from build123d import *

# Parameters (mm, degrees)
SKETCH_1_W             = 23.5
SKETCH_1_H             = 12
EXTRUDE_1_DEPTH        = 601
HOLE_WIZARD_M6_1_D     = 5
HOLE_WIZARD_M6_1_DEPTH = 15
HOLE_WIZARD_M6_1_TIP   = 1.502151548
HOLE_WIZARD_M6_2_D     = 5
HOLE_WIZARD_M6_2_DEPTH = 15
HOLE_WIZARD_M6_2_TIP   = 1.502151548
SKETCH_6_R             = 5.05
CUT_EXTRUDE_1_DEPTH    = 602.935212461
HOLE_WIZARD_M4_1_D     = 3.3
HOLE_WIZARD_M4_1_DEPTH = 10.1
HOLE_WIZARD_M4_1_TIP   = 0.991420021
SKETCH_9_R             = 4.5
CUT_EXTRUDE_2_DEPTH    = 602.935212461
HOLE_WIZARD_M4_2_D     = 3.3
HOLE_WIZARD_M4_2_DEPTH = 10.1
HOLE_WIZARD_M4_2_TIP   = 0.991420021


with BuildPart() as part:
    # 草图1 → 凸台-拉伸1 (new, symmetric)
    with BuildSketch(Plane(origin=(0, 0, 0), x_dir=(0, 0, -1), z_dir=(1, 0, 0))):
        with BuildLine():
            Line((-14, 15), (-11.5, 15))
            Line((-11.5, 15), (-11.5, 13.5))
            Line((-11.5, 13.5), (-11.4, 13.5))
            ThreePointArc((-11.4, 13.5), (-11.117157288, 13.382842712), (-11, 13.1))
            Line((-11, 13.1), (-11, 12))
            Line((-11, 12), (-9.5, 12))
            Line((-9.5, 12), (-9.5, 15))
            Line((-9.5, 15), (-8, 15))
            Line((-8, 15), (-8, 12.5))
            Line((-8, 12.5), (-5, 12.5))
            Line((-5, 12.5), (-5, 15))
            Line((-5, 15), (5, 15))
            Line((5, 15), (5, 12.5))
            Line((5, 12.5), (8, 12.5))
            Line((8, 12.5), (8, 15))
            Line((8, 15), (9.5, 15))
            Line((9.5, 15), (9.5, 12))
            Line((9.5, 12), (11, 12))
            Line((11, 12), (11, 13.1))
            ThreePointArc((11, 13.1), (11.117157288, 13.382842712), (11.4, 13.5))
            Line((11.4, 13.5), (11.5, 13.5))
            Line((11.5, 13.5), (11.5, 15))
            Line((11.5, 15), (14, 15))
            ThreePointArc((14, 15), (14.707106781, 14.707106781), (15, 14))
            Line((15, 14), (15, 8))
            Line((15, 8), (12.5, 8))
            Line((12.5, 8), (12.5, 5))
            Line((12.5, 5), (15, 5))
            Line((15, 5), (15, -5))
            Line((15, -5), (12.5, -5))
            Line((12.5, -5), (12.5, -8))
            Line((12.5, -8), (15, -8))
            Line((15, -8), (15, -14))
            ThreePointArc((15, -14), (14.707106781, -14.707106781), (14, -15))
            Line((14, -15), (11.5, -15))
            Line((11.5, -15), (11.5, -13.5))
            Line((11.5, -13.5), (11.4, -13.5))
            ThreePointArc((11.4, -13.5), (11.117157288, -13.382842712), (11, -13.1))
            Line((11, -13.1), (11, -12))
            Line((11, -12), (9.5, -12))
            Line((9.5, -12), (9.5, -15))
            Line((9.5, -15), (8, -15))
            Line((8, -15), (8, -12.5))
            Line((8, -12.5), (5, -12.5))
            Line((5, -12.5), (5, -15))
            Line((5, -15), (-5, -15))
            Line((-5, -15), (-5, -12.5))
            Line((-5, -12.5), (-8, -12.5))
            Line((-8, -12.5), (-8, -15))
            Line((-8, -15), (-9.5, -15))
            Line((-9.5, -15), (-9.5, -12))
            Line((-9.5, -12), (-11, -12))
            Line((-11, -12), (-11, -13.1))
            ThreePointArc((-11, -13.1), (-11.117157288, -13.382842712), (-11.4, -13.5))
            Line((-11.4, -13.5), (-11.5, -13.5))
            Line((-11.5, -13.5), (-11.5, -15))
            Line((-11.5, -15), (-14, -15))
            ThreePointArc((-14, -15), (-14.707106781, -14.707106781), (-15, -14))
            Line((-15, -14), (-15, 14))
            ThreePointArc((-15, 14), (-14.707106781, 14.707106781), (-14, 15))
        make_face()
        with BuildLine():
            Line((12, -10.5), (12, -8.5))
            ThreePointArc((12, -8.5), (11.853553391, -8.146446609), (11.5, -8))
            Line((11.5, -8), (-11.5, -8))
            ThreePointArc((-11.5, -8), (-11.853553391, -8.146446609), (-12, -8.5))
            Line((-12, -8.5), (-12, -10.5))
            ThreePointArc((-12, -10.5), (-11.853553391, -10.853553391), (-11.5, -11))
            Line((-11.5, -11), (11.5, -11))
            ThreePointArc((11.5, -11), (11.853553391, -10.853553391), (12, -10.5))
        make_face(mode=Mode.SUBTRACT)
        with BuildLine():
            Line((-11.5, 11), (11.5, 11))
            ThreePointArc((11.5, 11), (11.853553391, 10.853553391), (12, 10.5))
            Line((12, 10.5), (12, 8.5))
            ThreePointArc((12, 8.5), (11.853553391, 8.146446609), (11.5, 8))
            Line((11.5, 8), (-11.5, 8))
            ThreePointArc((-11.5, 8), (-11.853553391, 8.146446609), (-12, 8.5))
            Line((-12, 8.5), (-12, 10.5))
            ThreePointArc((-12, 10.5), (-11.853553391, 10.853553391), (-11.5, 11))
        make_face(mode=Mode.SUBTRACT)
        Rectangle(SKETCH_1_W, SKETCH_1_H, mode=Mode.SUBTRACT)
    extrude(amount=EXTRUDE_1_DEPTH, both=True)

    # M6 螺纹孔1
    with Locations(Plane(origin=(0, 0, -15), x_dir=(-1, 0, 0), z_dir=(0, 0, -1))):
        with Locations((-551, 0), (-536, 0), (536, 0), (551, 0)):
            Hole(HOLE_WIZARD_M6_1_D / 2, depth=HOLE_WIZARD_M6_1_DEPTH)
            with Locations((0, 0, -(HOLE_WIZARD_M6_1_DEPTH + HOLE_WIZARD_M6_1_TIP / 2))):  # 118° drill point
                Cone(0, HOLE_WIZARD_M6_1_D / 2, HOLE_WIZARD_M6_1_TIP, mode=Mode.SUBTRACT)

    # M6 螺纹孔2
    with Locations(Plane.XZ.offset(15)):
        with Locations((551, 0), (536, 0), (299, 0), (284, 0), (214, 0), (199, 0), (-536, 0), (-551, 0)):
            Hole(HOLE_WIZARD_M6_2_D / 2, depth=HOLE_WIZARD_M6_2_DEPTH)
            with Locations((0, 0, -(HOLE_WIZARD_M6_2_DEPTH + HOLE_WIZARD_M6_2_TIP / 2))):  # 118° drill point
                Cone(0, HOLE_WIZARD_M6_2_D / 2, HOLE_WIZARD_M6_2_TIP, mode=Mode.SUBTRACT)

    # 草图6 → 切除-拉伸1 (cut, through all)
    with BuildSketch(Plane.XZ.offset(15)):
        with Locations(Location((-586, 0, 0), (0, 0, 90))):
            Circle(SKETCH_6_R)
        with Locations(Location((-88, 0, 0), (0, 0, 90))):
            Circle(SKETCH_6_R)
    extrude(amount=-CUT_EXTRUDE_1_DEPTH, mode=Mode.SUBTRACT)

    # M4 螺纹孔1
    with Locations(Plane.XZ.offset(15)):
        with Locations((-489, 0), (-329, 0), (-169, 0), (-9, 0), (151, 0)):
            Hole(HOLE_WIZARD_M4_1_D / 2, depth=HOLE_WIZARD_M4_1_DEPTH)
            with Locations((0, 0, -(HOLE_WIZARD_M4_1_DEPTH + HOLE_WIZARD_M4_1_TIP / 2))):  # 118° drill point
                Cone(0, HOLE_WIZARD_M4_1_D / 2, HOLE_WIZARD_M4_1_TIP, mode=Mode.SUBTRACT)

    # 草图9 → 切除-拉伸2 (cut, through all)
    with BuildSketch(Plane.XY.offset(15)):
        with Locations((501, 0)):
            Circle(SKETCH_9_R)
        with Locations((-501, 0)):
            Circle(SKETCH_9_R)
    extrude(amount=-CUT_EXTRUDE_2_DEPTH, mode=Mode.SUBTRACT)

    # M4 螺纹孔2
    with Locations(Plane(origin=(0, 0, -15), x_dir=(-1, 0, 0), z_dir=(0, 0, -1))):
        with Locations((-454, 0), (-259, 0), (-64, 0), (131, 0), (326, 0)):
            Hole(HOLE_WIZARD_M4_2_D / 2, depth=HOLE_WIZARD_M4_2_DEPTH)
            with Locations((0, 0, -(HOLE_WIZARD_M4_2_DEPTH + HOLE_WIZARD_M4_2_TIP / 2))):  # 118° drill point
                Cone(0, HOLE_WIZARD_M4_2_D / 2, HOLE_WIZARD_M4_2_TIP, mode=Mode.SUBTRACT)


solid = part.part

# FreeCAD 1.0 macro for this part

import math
import FreeCAD as App
import Part
import Sketcher
from FreeCAD import Vector

doc = App.newDocument("Part")
body = doc.addObject("PartDesign::Body", "Body")

# Sketch on YZ plane
sketch1 = body.newObject("Sketcher::SketchObject", "Sketch")
sketch1.AttachmentSupport = (doc.getObject("YZ_Plane"), [""])
sketch1.MapMode = "FlatFace"
sketch1.addGeometry([
    Part.LineSegment(Vector(15, 11.5, 0), Vector(15, 14, 0)),  # 0
    Part.ArcOfCircle(Part.Circle(Vector(14, 14, 0), Vector(0, 0, 1), 1), math.radians(0), math.radians(90)),  # 1
    Part.LineSegment(Vector(14, 15, 0), Vector(-14, 15, 0)),  # 2
    Part.ArcOfCircle(Part.Circle(Vector(-14, 14, 0), Vector(0, 0, 1), 1), math.radians(90), math.radians(180)),  # 3
    Part.LineSegment(Vector(-15, 14, 0), Vector(-15, 11.5, 0)),  # 4
    Part.LineSegment(Vector(-15, 11.5, 0), Vector(-13.5, 11.5, 0)),  # 5
    Part.LineSegment(Vector(-13.5, 11.5, 0), Vector(-13.5, 11.4, 0)),  # 6
    Part.ArcOfCircle(Part.Circle(Vector(-13.1, 11.4, 0), Vector(0, 0, 1), 0.4), math.radians(-180), math.radians(-90)),  # 7
    Part.LineSegment(Vector(-13.1, 11, 0), Vector(-12, 11, 0)),  # 8
    Part.LineSegment(Vector(-12, 11, 0), Vector(-12, 9.5, 0)),  # 9
    Part.LineSegment(Vector(-12, 9.5, 0), Vector(-15, 9.5, 0)),  # 10
    Part.LineSegment(Vector(-15, 9.5, 0), Vector(-15, 8, 0)),  # 11
    Part.LineSegment(Vector(-15, 8, 0), Vector(-12.5, 8, 0)),  # 12
    Part.LineSegment(Vector(-12.5, 8, 0), Vector(-12.5, 5, 0)),  # 13
    Part.LineSegment(Vector(-12.5, 5, 0), Vector(-15, 5, 0)),  # 14
    Part.LineSegment(Vector(-15, 5, 0), Vector(-15, -5, 0)),  # 15
    Part.LineSegment(Vector(-15, -5, 0), Vector(-12.5, -5, 0)),  # 16
    Part.LineSegment(Vector(-12.5, -5, 0), Vector(-12.5, -8, 0)),  # 17
    Part.LineSegment(Vector(-12.5, -8, 0), Vector(-15, -8, 0)),  # 18
    Part.LineSegment(Vector(-15, -8, 0), Vector(-15, -9.5, 0)),  # 19
    Part.LineSegment(Vector(-15, -9.5, 0), Vector(-12, -9.5, 0)),  # 20
    Part.LineSegment(Vector(-12, -9.5, 0), Vector(-12, -11, 0)),  # 21
    Part.LineSegment(Vector(-12, -11, 0), Vector(-13.1, -11, 0)),  # 22
    Part.ArcOfCircle(Part.Circle(Vector(-13.1, -11.4, 0), Vector(0, 0, 1), 0.4), math.radians(90), math.radians(180)),  # 23
    Part.LineSegment(Vector(-13.5, -11.4, 0), Vector(-13.5, -11.5, 0)),  # 24
    Part.LineSegment(Vector(-13.5, -11.5, 0), Vector(-15, -11.5, 0)),  # 25
    Part.LineSegment(Vector(-15, -11.5, 0), Vector(-15, -14, 0)),  # 26
    Part.ArcOfCircle(Part.Circle(Vector(-14, -14, 0), Vector(0, 0, 1), 1), math.radians(-180), math.radians(-90)),  # 27
    Part.LineSegment(Vector(-14, -15, 0), Vector(-8, -15, 0)),  # 28
    Part.LineSegment(Vector(-8, -15, 0), Vector(-8, -12.5, 0)),  # 29
    Part.LineSegment(Vector(-8, -12.5, 0), Vector(-5, -12.5, 0)),  # 30
    Part.LineSegment(Vector(-5, -12.5, 0), Vector(-5, -15, 0)),  # 31
    Part.LineSegment(Vector(-5, -15, 0), Vector(5, -15, 0)),  # 32
    Part.LineSegment(Vector(5, -15, 0), Vector(5, -12.5, 0)),  # 33
    Part.LineSegment(Vector(5, -12.5, 0), Vector(8, -12.5, 0)),  # 34
    Part.LineSegment(Vector(8, -12.5, 0), Vector(8, -15, 0)),  # 35
    Part.LineSegment(Vector(8, -15, 0), Vector(14, -15, 0)),  # 36
    Part.ArcOfCircle(Part.Circle(Vector(14, -14, 0), Vector(0, 0, 1), 1), math.radians(-90), math.radians(0)),  # 37
    Part.LineSegment(Vector(15, -14, 0), Vector(15, -11.5, 0)),  # 38
    Part.LineSegment(Vector(15, -11.5, 0), Vector(13.5, -11.5, 0)),  # 39
    Part.LineSegment(Vector(13.5, -11.5, 0), Vector(13.5, -11.4, 0)),  # 40
    Part.ArcOfCircle(Part.Circle(Vector(13.1, -11.4, 0), Vector(0, 0, 1), 0.4), math.radians(0), math.radians(90)),  # 41
    Part.LineSegment(Vector(13.1, -11, 0), Vector(12, -11, 0)),  # 42
    Part.LineSegment(Vector(12, -11, 0), Vector(12, -9.5, 0)),  # 43
    Part.LineSegment(Vector(12, -9.5, 0), Vector(15, -9.5, 0)),  # 44
    Part.LineSegment(Vector(15, -9.5, 0), Vector(15, -8, 0)),  # 45
    Part.LineSegment(Vector(15, -8, 0), Vector(12.5, -8, 0)),  # 46
    Part.LineSegment(Vector(12.5, -8, 0), Vector(12.5, -5, 0)),  # 47
    Part.LineSegment(Vector(12.5, -5, 0), Vector(15, -5, 0)),  # 48
    Part.LineSegment(Vector(15, -5, 0), Vector(15, 5, 0)),  # 49
    Part.LineSegment(Vector(15, 5, 0), Vector(12.5, 5, 0)),  # 50
    Part.LineSegment(Vector(12.5, 5, 0), Vector(12.5, 8, 0)),  # 51
    Part.LineSegment(Vector(12.5, 8, 0), Vector(15, 8, 0)),  # 52
    Part.LineSegment(Vector(15, 8, 0), Vector(15, 9.5, 0)),  # 53
    Part.LineSegment(Vector(15, 9.5, 0), Vector(12, 9.5, 0)),  # 54
    Part.LineSegment(Vector(12, 9.5, 0), Vector(12, 11, 0)),  # 55
    Part.LineSegment(Vector(12, 11, 0), Vector(13.1, 11, 0)),  # 56
    Part.ArcOfCircle(Part.Circle(Vector(13.1, 11.4, 0), Vector(0, 0, 1), 0.4), math.radians(-90), math.radians(0)),  # 57
    Part.LineSegment(Vector(13.5, 11.4, 0), Vector(13.5, 11.5, 0)),  # 58
    Part.LineSegment(Vector(13.5, 11.5, 0), Vector(15, 11.5, 0)),  # 59
    Part.ArcOfCircle(Part.Circle(Vector(-10.5, -11.5, 0), Vector(0, 0, 1), 0.5), math.radians(180), math.radians(270)),  # 60
    Part.LineSegment(Vector(-11, -11.5, 0), Vector(-11, 11.5, 0)),  # 61
    Part.ArcOfCircle(Part.Circle(Vector(-10.5, 11.5, 0), Vector(0, 0, 1), 0.5), math.radians(90), math.radians(180)),  # 62
    Part.LineSegment(Vector(-10.5, 12, 0), Vector(-8.5, 12, 0)),  # 63
    Part.ArcOfCircle(Part.Circle(Vector(-8.5, 11.5, 0), Vector(0, 0, 1), 0.5), math.radians(0), math.radians(90)),  # 64
    Part.LineSegment(Vector(-8, 11.5, 0), Vector(-8, -11.5, 0)),  # 65
    Part.ArcOfCircle(Part.Circle(Vector(-8.5, -11.5, 0), Vector(0, 0, 1), 0.5), math.radians(-90), math.radians(0)),  # 66
    Part.LineSegment(Vector(-8.5, -12, 0), Vector(-10.5, -12, 0)),  # 67
    Part.LineSegment(Vector(-6, 11.75, 0), Vector(6, 11.75, 0)),  # 68
    Part.LineSegment(Vector(6, 11.75, 0), Vector(6, -11.75, 0)),  # 69
    Part.LineSegment(Vector(6, -11.75, 0), Vector(-6, -11.75, 0)),  # 70
    Part.LineSegment(Vector(-6, -11.75, 0), Vector(-6, 11.75, 0)),  # 71
    Part.LineSegment(Vector(11, 11.5, 0), Vector(11, -11.5, 0)),  # 72
    Part.ArcOfCircle(Part.Circle(Vector(10.5, -11.5, 0), Vector(0, 0, 1), 0.5), math.radians(-90), math.radians(0)),  # 73
    Part.LineSegment(Vector(10.5, -12, 0), Vector(8.5, -12, 0)),  # 74
    Part.ArcOfCircle(Part.Circle(Vector(8.5, -11.5, 0), Vector(0, 0, 1), 0.5), math.radians(180), math.radians(270)),  # 75
    Part.LineSegment(Vector(8, -11.5, 0), Vector(8, 11.5, 0)),  # 76
    Part.ArcOfCircle(Part.Circle(Vector(8.5, 11.5, 0), Vector(0, 0, 1), 0.5), math.radians(90), math.radians(180)),  # 77
    Part.LineSegment(Vector(8.5, 12, 0), Vector(10.5, 12, 0)),  # 78
    Part.ArcOfCircle(Part.Circle(Vector(10.5, 11.5, 0), Vector(0, 0, 1), 0.5), math.radians(0), math.radians(90)),  # 79
], False)
sketch1.addConstraint([
    Sketcher.Constraint("Tangent", 0, 2, 1, 1),
    Sketcher.Constraint("Tangent", 1, 2, 2, 1),
    Sketcher.Constraint("Tangent", 2, 2, 3, 1),
    Sketcher.Constraint("Tangent", 3, 2, 4, 1),
    Sketcher.Constraint("Coincident", 4, 2, 5, 1),
    Sketcher.Constraint("Coincident", 5, 2, 6, 1),
    Sketcher.Constraint("Tangent", 6, 2, 7, 1),
    Sketcher.Constraint("Tangent", 7, 2, 8, 1),
    Sketcher.Constraint("Coincident", 8, 2, 9, 1),
    Sketcher.Constraint("Coincident", 9, 2, 10, 1),
    Sketcher.Constraint("Coincident", 10, 2, 11, 1),
    Sketcher.Constraint("Coincident", 11, 2, 12, 1),
    Sketcher.Constraint("Coincident", 12, 2, 13, 1),
    Sketcher.Constraint("Coincident", 13, 2, 14, 1),
    Sketcher.Constraint("Coincident", 14, 2, 15, 1),
    Sketcher.Constraint("Coincident", 15, 2, 16, 1),
    Sketcher.Constraint("Coincident", 16, 2, 17, 1),
    Sketcher.Constraint("Coincident", 17, 2, 18, 1),
    Sketcher.Constraint("Coincident", 18, 2, 19, 1),
    Sketcher.Constraint("Coincident", 19, 2, 20, 1),
    Sketcher.Constraint("Coincident", 20, 2, 21, 1),
    Sketcher.Constraint("Coincident", 21, 2, 22, 1),
    Sketcher.Constraint("Tangent", 22, 2, 23, 1),
    Sketcher.Constraint("Tangent", 23, 2, 24, 1),
    Sketcher.Constraint("Coincident", 24, 2, 25, 1),
    Sketcher.Constraint("Coincident", 25, 2, 26, 1),
    Sketcher.Constraint("Tangent", 26, 2, 27, 1),
    Sketcher.Constraint("Tangent", 27, 2, 28, 1),
    Sketcher.Constraint("Coincident", 28, 2, 29, 1),
    Sketcher.Constraint("Coincident", 29, 2, 30, 1),
    Sketcher.Constraint("Coincident", 30, 2, 31, 1),
    Sketcher.Constraint("Coincident", 31, 2, 32, 1),
    Sketcher.Constraint("Coincident", 32, 2, 33, 1),
    Sketcher.Constraint("Coincident", 33, 2, 34, 1),
    Sketcher.Constraint("Coincident", 34, 2, 35, 1),
    Sketcher.Constraint("Coincident", 35, 2, 36, 1),
    Sketcher.Constraint("Tangent", 36, 2, 37, 1),
    Sketcher.Constraint("Tangent", 37, 2, 38, 1),
    Sketcher.Constraint("Coincident", 38, 2, 39, 1),
    Sketcher.Constraint("Coincident", 39, 2, 40, 1),
    Sketcher.Constraint("Tangent", 40, 2, 41, 1),
    Sketcher.Constraint("Tangent", 41, 2, 42, 1),
    Sketcher.Constraint("Coincident", 42, 2, 43, 1),
    Sketcher.Constraint("Coincident", 43, 2, 44, 1),
    Sketcher.Constraint("Coincident", 44, 2, 45, 1),
    Sketcher.Constraint("Coincident", 45, 2, 46, 1),
    Sketcher.Constraint("Coincident", 46, 2, 47, 1),
    Sketcher.Constraint("Coincident", 47, 2, 48, 1),
    Sketcher.Constraint("Coincident", 48, 2, 49, 1),
    Sketcher.Constraint("Coincident", 49, 2, 50, 1),
    Sketcher.Constraint("Coincident", 50, 2, 51, 1),
    Sketcher.Constraint("Coincident", 51, 2, 52, 1),
    Sketcher.Constraint("Coincident", 52, 2, 53, 1),
    Sketcher.Constraint("Coincident", 53, 2, 54, 1),
    Sketcher.Constraint("Coincident", 54, 2, 55, 1),
    Sketcher.Constraint("Coincident", 55, 2, 56, 1),
    Sketcher.Constraint("Tangent", 56, 2, 57, 1),
    Sketcher.Constraint("Tangent", 57, 2, 58, 1),
    Sketcher.Constraint("Coincident", 58, 2, 59, 1),
    Sketcher.Constraint("Coincident", 59, 2, 0, 1),
    Sketcher.Constraint("Tangent", 60, 1, 61, 1),
    Sketcher.Constraint("Tangent", 61, 2, 62, 2),
    Sketcher.Constraint("Tangent", 62, 1, 63, 1),
    Sketcher.Constraint("Tangent", 63, 2, 64, 2),
    Sketcher.Constraint("Tangent", 64, 1, 65, 1),
    Sketcher.Constraint("Tangent", 65, 2, 66, 2),
    Sketcher.Constraint("Tangent", 66, 1, 67, 1),
    Sketcher.Constraint("Tangent", 67, 2, 60, 2),
    Sketcher.Constraint("Coincident", 68, 2, 69, 1),
    Sketcher.Constraint("Coincident", 69, 2, 70, 1),
    Sketcher.Constraint("Coincident", 70, 2, 71, 1),
    Sketcher.Constraint("Coincident", 71, 2, 68, 1),
    Sketcher.Constraint("Tangent", 72, 2, 73, 2),
    Sketcher.Constraint("Tangent", 73, 1, 74, 1),
    Sketcher.Constraint("Tangent", 74, 2, 75, 2),
    Sketcher.Constraint("Tangent", 75, 1, 76, 1),
    Sketcher.Constraint("Tangent", 76, 2, 77, 2),
    Sketcher.Constraint("Tangent", 77, 1, 78, 1),
    Sketcher.Constraint("Tangent", 78, 2, 79, 2),
    Sketcher.Constraint("Tangent", 79, 1, 72, 1),
    Sketcher.Constraint("Vertical", 0),
    Sketcher.Constraint("Horizontal", 2),
    Sketcher.Constraint("Vertical", 4),
    Sketcher.Constraint("Horizontal", 5),
    Sketcher.Constraint("Vertical", 6),
    Sketcher.Constraint("Horizontal", 8),
    Sketcher.Constraint("Vertical", 9),
    Sketcher.Constraint("Horizontal", 10),
    Sketcher.Constraint("Vertical", 11),
    Sketcher.Constraint("Horizontal", 12),
    Sketcher.Constraint("Vertical", 13),
    Sketcher.Constraint("Horizontal", 14),
    Sketcher.Constraint("Vertical", 15),
    Sketcher.Constraint("Horizontal", 16),
    Sketcher.Constraint("Vertical", 17),
    Sketcher.Constraint("Horizontal", 18),
    Sketcher.Constraint("Vertical", 19),
    Sketcher.Constraint("Horizontal", 20),
    Sketcher.Constraint("Vertical", 21),
    Sketcher.Constraint("Horizontal", 22),
    Sketcher.Constraint("Vertical", 24),
    Sketcher.Constraint("Horizontal", 25),
    Sketcher.Constraint("Vertical", 26),
    Sketcher.Constraint("Horizontal", 28),
    Sketcher.Constraint("Vertical", 29),
    Sketcher.Constraint("Horizontal", 30),
    Sketcher.Constraint("Vertical", 31),
    Sketcher.Constraint("Horizontal", 32),
    Sketcher.Constraint("Vertical", 33),
    Sketcher.Constraint("Horizontal", 34),
    Sketcher.Constraint("Vertical", 35),
    Sketcher.Constraint("Horizontal", 36),
    Sketcher.Constraint("Vertical", 38),
    Sketcher.Constraint("Horizontal", 39),
    Sketcher.Constraint("Vertical", 40),
    Sketcher.Constraint("Horizontal", 42),
    Sketcher.Constraint("Vertical", 43),
    Sketcher.Constraint("Horizontal", 44),
    Sketcher.Constraint("Vertical", 45),
    Sketcher.Constraint("Horizontal", 46),
    Sketcher.Constraint("Vertical", 47),
    Sketcher.Constraint("Horizontal", 48),
    Sketcher.Constraint("Vertical", 49),
    Sketcher.Constraint("Horizontal", 50),
    Sketcher.Constraint("Vertical", 51),
    Sketcher.Constraint("Horizontal", 52),
    Sketcher.Constraint("Vertical", 53),
    Sketcher.Constraint("Horizontal", 54),
    Sketcher.Constraint("Vertical", 55),
    Sketcher.Constraint("Horizontal", 56),
    Sketcher.Constraint("Vertical", 58),
    Sketcher.Constraint("Horizontal", 59),
    Sketcher.Constraint("Vertical", 61),
    Sketcher.Constraint("Horizontal", 63),
    Sketcher.Constraint("Vertical", 65),
    Sketcher.Constraint("Horizontal", 67),
    Sketcher.Constraint("Horizontal", 68),
    Sketcher.Constraint("Vertical", 69),
    Sketcher.Constraint("Horizontal", 70),
    Sketcher.Constraint("Vertical", 71),
    Sketcher.Constraint("Vertical", 72),
    Sketcher.Constraint("Horizontal", 74),
    Sketcher.Constraint("Vertical", 76),
    Sketcher.Constraint("Horizontal", 78),
    Sketcher.Constraint("Equal", 1, 3),
    Sketcher.Constraint("Equal", 7, 23),
    Sketcher.Constraint("Equal", 3, 27),
    Sketcher.Constraint("Equal", 27, 37),
    Sketcher.Constraint("Equal", 23, 41),
    Sketcher.Constraint("Equal", 41, 57),
    Sketcher.Constraint("Equal", 60, 62),
    Sketcher.Constraint("Equal", 62, 64),
    Sketcher.Constraint("Equal", 64, 66),
    Sketcher.Constraint("Equal", 66, 73),
    Sketcher.Constraint("Equal", 73, 75),
    Sketcher.Constraint("Equal", 75, 77),
    Sketcher.Constraint("Equal", 77, 79),
    Sketcher.Constraint("Symmetric", 1, 3, 27, 3, -1, 1),
    Sketcher.Constraint("Symmetric", 3, 3, 37, 3, -1, 1),
    Sketcher.Constraint("Symmetric", 7, 3, 41, 3, -1, 1),
    Sketcher.Constraint("Symmetric", 23, 3, 57, 3, -1, 1),
    Sketcher.Constraint("Symmetric", 62, 3, 73, 3, -1, 1),
    Sketcher.Constraint("Symmetric", 66, 3, 77, 3, -1, 1),
    Sketcher.Constraint("Symmetric", 9, 2, 43, 2, -1, 1),
    Sketcher.Constraint("Symmetric", 11, 2, 45, 2, -1, 1),
    Sketcher.Constraint("Symmetric", 13, 2, 47, 2, -1, 1),
    Sketcher.Constraint("Symmetric", 15, 2, 49, 2, -1, 1),
    Sketcher.Constraint("Symmetric", 17, 2, 51, 2, -1, 1),
    Sketcher.Constraint("Symmetric", 19, 2, 53, 2, -1, 1),
    Sketcher.Constraint("Symmetric", 68, 2, 70, 2, -1, 1),
    Sketcher.Constraint("Symmetric", 23, 3, 41, 3, -2),
    Sketcher.Constraint("Symmetric", 30, 2, 33, 2, -2),
    Sketcher.Constraint("Symmetric", 25, 2, 38, 2, -2),
    Sketcher.Constraint("Symmetric", 20, 2, 43, 2, -2),
    Sketcher.Constraint("Symmetric", 18, 2, 45, 2, -2),
    Sketcher.Constraint("Symmetric", 16, 2, 47, 2, -2),
    Sketcher.Constraint("Horizontal", 66, 3, 73, 3),
    Sketcher.Constraint("Horizontal", 79, 3, 4, 2),
    Sketcher.Constraint("Horizontal", 75, 3, 24, 2),
    Sketcher.Constraint("Horizontal", 28, 2, 31, 2),
    Sketcher.Constraint("Horizontal", 5, 2, 58, 2),
    Sketcher.Constraint("Vertical", 4, 2, 10, 2),
    Sketcher.Constraint("Vertical", 11, 2, 14, 2),
    Sketcher.Constraint("Vertical", 43, 2, 54, 2),
    Sketcher.Constraint("Vertical", 29, 2, 64, 1),
    Sketcher.Constraint("Vertical", 35, 2, 75, 1),
    Sketcher.Constraint("Equal", 20, 30),
    Sketcher.Constraint("Equal", 52, 0),
    Sketcher.Constraint("Equal", 59, 9),
    Sketcher.Constraint("Equal", 9, 11),
    Sketcher.Constraint("Equal", 54, 13),
    Sketcher.Constraint("Equal", 32, 15),
    Sketcher.Constraint("Equal", 26, 29),
    Sketcher.Constraint("Radius", 1, 1.0),
    Sketcher.Constraint("Radius", 7, 0.4),
    Sketcher.Constraint("Radius", 60, 0.5),
    Sketcher.Constraint("DistanceX", 2, 2, 2, 1, 28.0),
    Sketcher.Constraint("DistanceX", 10, 2, 10, 1, 3.0),
    Sketcher.Constraint("DistanceX", 28, 1, 28, 2, 6.0),
    Sketcher.Constraint("DistanceX", 63, 1, 63, 2, 2.0),
    Sketcher.Constraint("DistanceX", 68, 1, 68, 2, 12.0),
    Sketcher.Constraint("DistanceY", 61, 1, 61, 2, 23.0),
    Sketcher.Constraint("DistanceX", 5, 1, 5, 2, 1.5),
    Sketcher.Constraint("DistanceX", 12, 1, 12, 2, 2.5),
    Sketcher.Constraint("DistanceY", 69, 2, 69, 1, 23.5),
])
pad1 = body.newObject("PartDesign::Pad", "Pad")
pad1.Profile = sketch1
pad1.Length = 1202
pad1.Midplane = True

# Sketch on XY plane
sketch2 = body.newObject("Sketcher::SketchObject", "Sketch001")
sketch2.AttachmentSupport = (doc.getObject("XY_Plane"), [""])
sketch2.MapMode = "FlatFace"
sketch2.AttachmentOffset = App.Placement(Vector(0, 0, -15), App.Rotation())
sketch2.addGeometry([
    Part.Circle(Vector(551, 0, 0), Vector(0, 0, 1), 2.5),
    Part.Circle(Vector(536, 0, 0), Vector(0, 0, 1), 2.5),
    Part.Circle(Vector(-536, 0, 0), Vector(0, 0, 1), 2.5),
    Part.Circle(Vector(-551, 0, 0), Vector(0, 0, 1), 2.5),
], False)
sketch2.addConstraint([
    Sketcher.Constraint("Equal", 0, 1),
    Sketcher.Constraint("Equal", 1, 2),
    Sketcher.Constraint("Equal", 2, 3),
    Sketcher.Constraint("Symmetric", 1, 3, 2, 3, -1, 1),
    Sketcher.Constraint("Symmetric", 0, 3, 3, 3, -1, 1),
    Sketcher.Constraint("PointOnObject", 0, 3, -1),
    Sketcher.Constraint("PointOnObject", 1, 3, -1),
    Sketcher.Constraint("Diameter", 0, 5.0),
    Sketcher.Constraint("DistanceX", -1, 1, 0, 3, 551.0),
    Sketcher.Constraint("DistanceX", -1, 1, 1, 3, 536.0),
])
doc.recompute()
hole = body.newObject("PartDesign::Hole", "Hole")
hole.Profile = sketch2
hole.ThreadType = "None"
hole.Diameter = 5
hole.DepthType = "Dimension"
hole.Depth = 15
hole.DrillPoint = "Angled"
hole.DrillPointAngle = 118
hole.Reversed = True

# Sketch on XZ plane
sketch3 = body.newObject("Sketcher::SketchObject", "Sketch002")
sketch3.AttachmentSupport = (doc.getObject("XZ_Plane"), [""])
sketch3.MapMode = "FlatFace"
sketch3.AttachmentOffset = App.Placement(Vector(0, 0, 15), App.Rotation())
sketch3.addGeometry([
    Part.Circle(Vector(551, 0, 0), Vector(0, 0, 1), 2.5),  # 0
    Part.Circle(Vector(536, 0, 0), Vector(0, 0, 1), 2.5),  # 1
    Part.Circle(Vector(299, 0, 0), Vector(0, 0, 1), 2.5),  # 2
    Part.Circle(Vector(284, 0, 0), Vector(0, 0, 1), 2.5),  # 3
    Part.Circle(Vector(214, 0, 0), Vector(0, 0, 1), 2.5),  # 4
    Part.Circle(Vector(199, 0, 0), Vector(0, 0, 1), 2.5),  # 5
    Part.Circle(Vector(-536, 0, 0), Vector(0, 0, 1), 2.5),  # 6
    Part.Circle(Vector(-551, 0, 0), Vector(0, 0, 1), 2.5),  # 7
], False)
sketch3.addConstraint([
    Sketcher.Constraint("Equal", 0, 1),
    Sketcher.Constraint("Equal", 1, 2),
    Sketcher.Constraint("Equal", 2, 3),
    Sketcher.Constraint("Equal", 3, 4),
    Sketcher.Constraint("Equal", 4, 5),
    Sketcher.Constraint("Equal", 5, 6),
    Sketcher.Constraint("Equal", 6, 7),
    Sketcher.Constraint("Symmetric", 1, 3, 6, 3, -1, 1),
    Sketcher.Constraint("Symmetric", 0, 3, 7, 3, -1, 1),
    Sketcher.Constraint("PointOnObject", 0, 3, -1),
    Sketcher.Constraint("PointOnObject", 1, 3, -1),
    Sketcher.Constraint("PointOnObject", 2, 3, -1),
    Sketcher.Constraint("PointOnObject", 3, 3, -1),
    Sketcher.Constraint("PointOnObject", 4, 3, -1),
    Sketcher.Constraint("PointOnObject", 5, 3, -1),
    Sketcher.Constraint("Diameter", 0, 5.0),
    Sketcher.Constraint("DistanceX", -1, 1, 0, 3, 551.0),
    Sketcher.Constraint("DistanceX", -1, 1, 1, 3, 536.0),
    Sketcher.Constraint("DistanceX", -1, 1, 2, 3, 299.0),
    Sketcher.Constraint("DistanceX", -1, 1, 3, 3, 284.0),
    Sketcher.Constraint("DistanceX", -1, 1, 4, 3, 214.0),
    Sketcher.Constraint("DistanceX", -1, 1, 5, 3, 199.0),
])
doc.recompute()
hole2 = body.newObject("PartDesign::Hole", "Hole001")
hole2.Profile = sketch3
hole2.ThreadType = "None"
hole2.Diameter = 5
hole2.DepthType = "Dimension"
hole2.Depth = 15
hole2.DrillPoint = "Angled"
hole2.DrillPointAngle = 118

# Sketch on XZ plane
sketch4 = body.newObject("Sketcher::SketchObject", "Sketch003")
sketch4.AttachmentSupport = (doc.getObject("XZ_Plane"), [""])
sketch4.MapMode = "FlatFace"
sketch4.AttachmentOffset = App.Placement(Vector(0, 0, 15), App.Rotation())
sketch4.addGeometry([
    Part.Circle(Vector(-586, 0, 0), Vector(0, 0, 1), 5),
    Part.Circle(Vector(-88, 0, 0), Vector(0, 0, 1), 5),
], False)
sketch4.addConstraint([
    Sketcher.Constraint("Equal", 0, 1),
    Sketcher.Constraint("PointOnObject", 0, 3, -1),
    Sketcher.Constraint("PointOnObject", 1, 3, -1),
    Sketcher.Constraint("Diameter", 0, 10.1),
    Sketcher.Constraint("DistanceX", 0, 3, -1, 1, 586.0),
    Sketcher.Constraint("DistanceX", 1, 3, -1, 1, 88.0),
])
pocket1 = body.newObject("PartDesign::Pocket", "Pocket")
pocket1.Profile = sketch4
pocket1.Type = "ThroughAll"

# Sketch on XZ plane
sketch5 = body.newObject("Sketcher::SketchObject", "Sketch004")
sketch5.AttachmentSupport = (doc.getObject("XZ_Plane"), [""])
sketch5.MapMode = "FlatFace"
sketch5.AttachmentOffset = App.Placement(Vector(0, 0, 15), App.Rotation())
sketch5.addGeometry([
    Part.Circle(Vector(-489, 0, 0), Vector(0, 0, 1), 1.6),  # 0
    Part.Circle(Vector(-329, 0, 0), Vector(0, 0, 1), 1.6),  # 1
    Part.Circle(Vector(-169, 0, 0), Vector(0, 0, 1), 1.6),  # 2
    Part.Circle(Vector(-9, 0, 0), Vector(0, 0, 1), 1.6),  # 3
    Part.Circle(Vector(151, 0, 0), Vector(0, 0, 1), 1.6),  # 4
], False)
sketch5.addConstraint([
    Sketcher.Constraint("Equal", 0, 1),
    Sketcher.Constraint("Equal", 1, 2),
    Sketcher.Constraint("Equal", 2, 3),
    Sketcher.Constraint("Equal", 3, 4),
    Sketcher.Constraint("PointOnObject", 0, 3, -1),
    Sketcher.Constraint("PointOnObject", 1, 3, -1),
    Sketcher.Constraint("PointOnObject", 2, 3, -1),
    Sketcher.Constraint("PointOnObject", 3, 3, -1),
    Sketcher.Constraint("PointOnObject", 4, 3, -1),
    Sketcher.Constraint("Diameter", 0, 3.3),
    Sketcher.Constraint("DistanceX", 0, 3, -1, 1, 489.0),
    Sketcher.Constraint("DistanceX", 1, 3, -1, 1, 329.0),
    Sketcher.Constraint("DistanceX", 2, 3, -1, 1, 169.0),
    Sketcher.Constraint("DistanceX", 3, 3, -1, 1, 9.0),
    Sketcher.Constraint("DistanceX", -1, 1, 4, 3, 151.0),
])
doc.recompute()
hole3 = body.newObject("PartDesign::Hole", "Hole002")
hole3.Profile = sketch5
hole3.ThreadType = "None"
hole3.Diameter = 3.3
hole3.DepthType = "Dimension"
hole3.Depth = 10.1
hole3.DrillPoint = "Angled"
hole3.DrillPointAngle = 118

# Sketch on XY plane
sketch6 = body.newObject("Sketcher::SketchObject", "Sketch005")
sketch6.AttachmentSupport = (doc.getObject("XY_Plane"), [""])
sketch6.MapMode = "FlatFace"
sketch6.AttachmentOffset = App.Placement(Vector(0, 0, 15), App.Rotation())
sketch6.addGeometry([
    Part.Circle(Vector(501, 0, 0), Vector(0, 0, 1), 4.5),
    Part.Circle(Vector(-501, 0, 0), Vector(0, 0, 1), 4.5),
], False)
sketch6.addConstraint([
    Sketcher.Constraint("Equal", 0, 1),
    Sketcher.Constraint("Symmetric", 0, 3, 1, 3, -1, 1),
    Sketcher.Constraint("PointOnObject", 0, 3, -1),
    Sketcher.Constraint("Diameter", 0, 9.0),
    Sketcher.Constraint("DistanceX", -1, 1, 0, 3, 501.0),
])
pocket2 = body.newObject("PartDesign::Pocket", "Pocket001")
pocket2.Profile = sketch6
pocket2.Type = "ThroughAll"

# Sketch on XY plane
sketch7 = body.newObject("Sketcher::SketchObject", "Sketch006")
sketch7.AttachmentSupport = (doc.getObject("XY_Plane"), [""])
sketch7.MapMode = "FlatFace"
sketch7.AttachmentOffset = App.Placement(Vector(0, 0, -15), App.Rotation())
sketch7.addGeometry([
    Part.Circle(Vector(454, 0, 0), Vector(0, 0, 1), 1.6),  # 0
    Part.Circle(Vector(259, 0, 0), Vector(0, 0, 1), 1.6),  # 1
    Part.Circle(Vector(64, 0, 0), Vector(0, 0, 1), 1.6),  # 2
    Part.Circle(Vector(-131, 0, 0), Vector(0, 0, 1), 1.6),  # 3
    Part.Circle(Vector(-326, 0, 0), Vector(0, 0, 1), 1.6),  # 4
], False)
sketch7.addConstraint([
    Sketcher.Constraint("Equal", 0, 1),
    Sketcher.Constraint("Equal", 1, 2),
    Sketcher.Constraint("Equal", 2, 3),
    Sketcher.Constraint("Equal", 3, 4),
    Sketcher.Constraint("PointOnObject", 0, 3, -1),
    Sketcher.Constraint("PointOnObject", 1, 3, -1),
    Sketcher.Constraint("PointOnObject", 2, 3, -1),
    Sketcher.Constraint("PointOnObject", 3, 3, -1),
    Sketcher.Constraint("PointOnObject", 4, 3, -1),
    Sketcher.Constraint("Diameter", 0, 3.3),
    Sketcher.Constraint("DistanceX", -1, 1, 0, 3, 454.0),
    Sketcher.Constraint("DistanceX", -1, 1, 1, 3, 259.0),
    Sketcher.Constraint("DistanceX", -1, 1, 2, 3, 64.0),
    Sketcher.Constraint("DistanceX", 3, 3, -1, 1, 131.0),
    Sketcher.Constraint("DistanceX", 4, 3, -1, 1, 326.0),
])
doc.recompute()
hole4 = body.newObject("PartDesign::Hole", "Hole003")
hole4.Profile = sketch7
hole4.ThreadType = "None"
hole4.Diameter = 3.3
hole4.DepthType = "Dimension"
hole4.Depth = 10.1
hole4.DrillPoint = "Angled"
hole4.DrillPointAngle = 118
hole4.Reversed = True

doc.recompute()
